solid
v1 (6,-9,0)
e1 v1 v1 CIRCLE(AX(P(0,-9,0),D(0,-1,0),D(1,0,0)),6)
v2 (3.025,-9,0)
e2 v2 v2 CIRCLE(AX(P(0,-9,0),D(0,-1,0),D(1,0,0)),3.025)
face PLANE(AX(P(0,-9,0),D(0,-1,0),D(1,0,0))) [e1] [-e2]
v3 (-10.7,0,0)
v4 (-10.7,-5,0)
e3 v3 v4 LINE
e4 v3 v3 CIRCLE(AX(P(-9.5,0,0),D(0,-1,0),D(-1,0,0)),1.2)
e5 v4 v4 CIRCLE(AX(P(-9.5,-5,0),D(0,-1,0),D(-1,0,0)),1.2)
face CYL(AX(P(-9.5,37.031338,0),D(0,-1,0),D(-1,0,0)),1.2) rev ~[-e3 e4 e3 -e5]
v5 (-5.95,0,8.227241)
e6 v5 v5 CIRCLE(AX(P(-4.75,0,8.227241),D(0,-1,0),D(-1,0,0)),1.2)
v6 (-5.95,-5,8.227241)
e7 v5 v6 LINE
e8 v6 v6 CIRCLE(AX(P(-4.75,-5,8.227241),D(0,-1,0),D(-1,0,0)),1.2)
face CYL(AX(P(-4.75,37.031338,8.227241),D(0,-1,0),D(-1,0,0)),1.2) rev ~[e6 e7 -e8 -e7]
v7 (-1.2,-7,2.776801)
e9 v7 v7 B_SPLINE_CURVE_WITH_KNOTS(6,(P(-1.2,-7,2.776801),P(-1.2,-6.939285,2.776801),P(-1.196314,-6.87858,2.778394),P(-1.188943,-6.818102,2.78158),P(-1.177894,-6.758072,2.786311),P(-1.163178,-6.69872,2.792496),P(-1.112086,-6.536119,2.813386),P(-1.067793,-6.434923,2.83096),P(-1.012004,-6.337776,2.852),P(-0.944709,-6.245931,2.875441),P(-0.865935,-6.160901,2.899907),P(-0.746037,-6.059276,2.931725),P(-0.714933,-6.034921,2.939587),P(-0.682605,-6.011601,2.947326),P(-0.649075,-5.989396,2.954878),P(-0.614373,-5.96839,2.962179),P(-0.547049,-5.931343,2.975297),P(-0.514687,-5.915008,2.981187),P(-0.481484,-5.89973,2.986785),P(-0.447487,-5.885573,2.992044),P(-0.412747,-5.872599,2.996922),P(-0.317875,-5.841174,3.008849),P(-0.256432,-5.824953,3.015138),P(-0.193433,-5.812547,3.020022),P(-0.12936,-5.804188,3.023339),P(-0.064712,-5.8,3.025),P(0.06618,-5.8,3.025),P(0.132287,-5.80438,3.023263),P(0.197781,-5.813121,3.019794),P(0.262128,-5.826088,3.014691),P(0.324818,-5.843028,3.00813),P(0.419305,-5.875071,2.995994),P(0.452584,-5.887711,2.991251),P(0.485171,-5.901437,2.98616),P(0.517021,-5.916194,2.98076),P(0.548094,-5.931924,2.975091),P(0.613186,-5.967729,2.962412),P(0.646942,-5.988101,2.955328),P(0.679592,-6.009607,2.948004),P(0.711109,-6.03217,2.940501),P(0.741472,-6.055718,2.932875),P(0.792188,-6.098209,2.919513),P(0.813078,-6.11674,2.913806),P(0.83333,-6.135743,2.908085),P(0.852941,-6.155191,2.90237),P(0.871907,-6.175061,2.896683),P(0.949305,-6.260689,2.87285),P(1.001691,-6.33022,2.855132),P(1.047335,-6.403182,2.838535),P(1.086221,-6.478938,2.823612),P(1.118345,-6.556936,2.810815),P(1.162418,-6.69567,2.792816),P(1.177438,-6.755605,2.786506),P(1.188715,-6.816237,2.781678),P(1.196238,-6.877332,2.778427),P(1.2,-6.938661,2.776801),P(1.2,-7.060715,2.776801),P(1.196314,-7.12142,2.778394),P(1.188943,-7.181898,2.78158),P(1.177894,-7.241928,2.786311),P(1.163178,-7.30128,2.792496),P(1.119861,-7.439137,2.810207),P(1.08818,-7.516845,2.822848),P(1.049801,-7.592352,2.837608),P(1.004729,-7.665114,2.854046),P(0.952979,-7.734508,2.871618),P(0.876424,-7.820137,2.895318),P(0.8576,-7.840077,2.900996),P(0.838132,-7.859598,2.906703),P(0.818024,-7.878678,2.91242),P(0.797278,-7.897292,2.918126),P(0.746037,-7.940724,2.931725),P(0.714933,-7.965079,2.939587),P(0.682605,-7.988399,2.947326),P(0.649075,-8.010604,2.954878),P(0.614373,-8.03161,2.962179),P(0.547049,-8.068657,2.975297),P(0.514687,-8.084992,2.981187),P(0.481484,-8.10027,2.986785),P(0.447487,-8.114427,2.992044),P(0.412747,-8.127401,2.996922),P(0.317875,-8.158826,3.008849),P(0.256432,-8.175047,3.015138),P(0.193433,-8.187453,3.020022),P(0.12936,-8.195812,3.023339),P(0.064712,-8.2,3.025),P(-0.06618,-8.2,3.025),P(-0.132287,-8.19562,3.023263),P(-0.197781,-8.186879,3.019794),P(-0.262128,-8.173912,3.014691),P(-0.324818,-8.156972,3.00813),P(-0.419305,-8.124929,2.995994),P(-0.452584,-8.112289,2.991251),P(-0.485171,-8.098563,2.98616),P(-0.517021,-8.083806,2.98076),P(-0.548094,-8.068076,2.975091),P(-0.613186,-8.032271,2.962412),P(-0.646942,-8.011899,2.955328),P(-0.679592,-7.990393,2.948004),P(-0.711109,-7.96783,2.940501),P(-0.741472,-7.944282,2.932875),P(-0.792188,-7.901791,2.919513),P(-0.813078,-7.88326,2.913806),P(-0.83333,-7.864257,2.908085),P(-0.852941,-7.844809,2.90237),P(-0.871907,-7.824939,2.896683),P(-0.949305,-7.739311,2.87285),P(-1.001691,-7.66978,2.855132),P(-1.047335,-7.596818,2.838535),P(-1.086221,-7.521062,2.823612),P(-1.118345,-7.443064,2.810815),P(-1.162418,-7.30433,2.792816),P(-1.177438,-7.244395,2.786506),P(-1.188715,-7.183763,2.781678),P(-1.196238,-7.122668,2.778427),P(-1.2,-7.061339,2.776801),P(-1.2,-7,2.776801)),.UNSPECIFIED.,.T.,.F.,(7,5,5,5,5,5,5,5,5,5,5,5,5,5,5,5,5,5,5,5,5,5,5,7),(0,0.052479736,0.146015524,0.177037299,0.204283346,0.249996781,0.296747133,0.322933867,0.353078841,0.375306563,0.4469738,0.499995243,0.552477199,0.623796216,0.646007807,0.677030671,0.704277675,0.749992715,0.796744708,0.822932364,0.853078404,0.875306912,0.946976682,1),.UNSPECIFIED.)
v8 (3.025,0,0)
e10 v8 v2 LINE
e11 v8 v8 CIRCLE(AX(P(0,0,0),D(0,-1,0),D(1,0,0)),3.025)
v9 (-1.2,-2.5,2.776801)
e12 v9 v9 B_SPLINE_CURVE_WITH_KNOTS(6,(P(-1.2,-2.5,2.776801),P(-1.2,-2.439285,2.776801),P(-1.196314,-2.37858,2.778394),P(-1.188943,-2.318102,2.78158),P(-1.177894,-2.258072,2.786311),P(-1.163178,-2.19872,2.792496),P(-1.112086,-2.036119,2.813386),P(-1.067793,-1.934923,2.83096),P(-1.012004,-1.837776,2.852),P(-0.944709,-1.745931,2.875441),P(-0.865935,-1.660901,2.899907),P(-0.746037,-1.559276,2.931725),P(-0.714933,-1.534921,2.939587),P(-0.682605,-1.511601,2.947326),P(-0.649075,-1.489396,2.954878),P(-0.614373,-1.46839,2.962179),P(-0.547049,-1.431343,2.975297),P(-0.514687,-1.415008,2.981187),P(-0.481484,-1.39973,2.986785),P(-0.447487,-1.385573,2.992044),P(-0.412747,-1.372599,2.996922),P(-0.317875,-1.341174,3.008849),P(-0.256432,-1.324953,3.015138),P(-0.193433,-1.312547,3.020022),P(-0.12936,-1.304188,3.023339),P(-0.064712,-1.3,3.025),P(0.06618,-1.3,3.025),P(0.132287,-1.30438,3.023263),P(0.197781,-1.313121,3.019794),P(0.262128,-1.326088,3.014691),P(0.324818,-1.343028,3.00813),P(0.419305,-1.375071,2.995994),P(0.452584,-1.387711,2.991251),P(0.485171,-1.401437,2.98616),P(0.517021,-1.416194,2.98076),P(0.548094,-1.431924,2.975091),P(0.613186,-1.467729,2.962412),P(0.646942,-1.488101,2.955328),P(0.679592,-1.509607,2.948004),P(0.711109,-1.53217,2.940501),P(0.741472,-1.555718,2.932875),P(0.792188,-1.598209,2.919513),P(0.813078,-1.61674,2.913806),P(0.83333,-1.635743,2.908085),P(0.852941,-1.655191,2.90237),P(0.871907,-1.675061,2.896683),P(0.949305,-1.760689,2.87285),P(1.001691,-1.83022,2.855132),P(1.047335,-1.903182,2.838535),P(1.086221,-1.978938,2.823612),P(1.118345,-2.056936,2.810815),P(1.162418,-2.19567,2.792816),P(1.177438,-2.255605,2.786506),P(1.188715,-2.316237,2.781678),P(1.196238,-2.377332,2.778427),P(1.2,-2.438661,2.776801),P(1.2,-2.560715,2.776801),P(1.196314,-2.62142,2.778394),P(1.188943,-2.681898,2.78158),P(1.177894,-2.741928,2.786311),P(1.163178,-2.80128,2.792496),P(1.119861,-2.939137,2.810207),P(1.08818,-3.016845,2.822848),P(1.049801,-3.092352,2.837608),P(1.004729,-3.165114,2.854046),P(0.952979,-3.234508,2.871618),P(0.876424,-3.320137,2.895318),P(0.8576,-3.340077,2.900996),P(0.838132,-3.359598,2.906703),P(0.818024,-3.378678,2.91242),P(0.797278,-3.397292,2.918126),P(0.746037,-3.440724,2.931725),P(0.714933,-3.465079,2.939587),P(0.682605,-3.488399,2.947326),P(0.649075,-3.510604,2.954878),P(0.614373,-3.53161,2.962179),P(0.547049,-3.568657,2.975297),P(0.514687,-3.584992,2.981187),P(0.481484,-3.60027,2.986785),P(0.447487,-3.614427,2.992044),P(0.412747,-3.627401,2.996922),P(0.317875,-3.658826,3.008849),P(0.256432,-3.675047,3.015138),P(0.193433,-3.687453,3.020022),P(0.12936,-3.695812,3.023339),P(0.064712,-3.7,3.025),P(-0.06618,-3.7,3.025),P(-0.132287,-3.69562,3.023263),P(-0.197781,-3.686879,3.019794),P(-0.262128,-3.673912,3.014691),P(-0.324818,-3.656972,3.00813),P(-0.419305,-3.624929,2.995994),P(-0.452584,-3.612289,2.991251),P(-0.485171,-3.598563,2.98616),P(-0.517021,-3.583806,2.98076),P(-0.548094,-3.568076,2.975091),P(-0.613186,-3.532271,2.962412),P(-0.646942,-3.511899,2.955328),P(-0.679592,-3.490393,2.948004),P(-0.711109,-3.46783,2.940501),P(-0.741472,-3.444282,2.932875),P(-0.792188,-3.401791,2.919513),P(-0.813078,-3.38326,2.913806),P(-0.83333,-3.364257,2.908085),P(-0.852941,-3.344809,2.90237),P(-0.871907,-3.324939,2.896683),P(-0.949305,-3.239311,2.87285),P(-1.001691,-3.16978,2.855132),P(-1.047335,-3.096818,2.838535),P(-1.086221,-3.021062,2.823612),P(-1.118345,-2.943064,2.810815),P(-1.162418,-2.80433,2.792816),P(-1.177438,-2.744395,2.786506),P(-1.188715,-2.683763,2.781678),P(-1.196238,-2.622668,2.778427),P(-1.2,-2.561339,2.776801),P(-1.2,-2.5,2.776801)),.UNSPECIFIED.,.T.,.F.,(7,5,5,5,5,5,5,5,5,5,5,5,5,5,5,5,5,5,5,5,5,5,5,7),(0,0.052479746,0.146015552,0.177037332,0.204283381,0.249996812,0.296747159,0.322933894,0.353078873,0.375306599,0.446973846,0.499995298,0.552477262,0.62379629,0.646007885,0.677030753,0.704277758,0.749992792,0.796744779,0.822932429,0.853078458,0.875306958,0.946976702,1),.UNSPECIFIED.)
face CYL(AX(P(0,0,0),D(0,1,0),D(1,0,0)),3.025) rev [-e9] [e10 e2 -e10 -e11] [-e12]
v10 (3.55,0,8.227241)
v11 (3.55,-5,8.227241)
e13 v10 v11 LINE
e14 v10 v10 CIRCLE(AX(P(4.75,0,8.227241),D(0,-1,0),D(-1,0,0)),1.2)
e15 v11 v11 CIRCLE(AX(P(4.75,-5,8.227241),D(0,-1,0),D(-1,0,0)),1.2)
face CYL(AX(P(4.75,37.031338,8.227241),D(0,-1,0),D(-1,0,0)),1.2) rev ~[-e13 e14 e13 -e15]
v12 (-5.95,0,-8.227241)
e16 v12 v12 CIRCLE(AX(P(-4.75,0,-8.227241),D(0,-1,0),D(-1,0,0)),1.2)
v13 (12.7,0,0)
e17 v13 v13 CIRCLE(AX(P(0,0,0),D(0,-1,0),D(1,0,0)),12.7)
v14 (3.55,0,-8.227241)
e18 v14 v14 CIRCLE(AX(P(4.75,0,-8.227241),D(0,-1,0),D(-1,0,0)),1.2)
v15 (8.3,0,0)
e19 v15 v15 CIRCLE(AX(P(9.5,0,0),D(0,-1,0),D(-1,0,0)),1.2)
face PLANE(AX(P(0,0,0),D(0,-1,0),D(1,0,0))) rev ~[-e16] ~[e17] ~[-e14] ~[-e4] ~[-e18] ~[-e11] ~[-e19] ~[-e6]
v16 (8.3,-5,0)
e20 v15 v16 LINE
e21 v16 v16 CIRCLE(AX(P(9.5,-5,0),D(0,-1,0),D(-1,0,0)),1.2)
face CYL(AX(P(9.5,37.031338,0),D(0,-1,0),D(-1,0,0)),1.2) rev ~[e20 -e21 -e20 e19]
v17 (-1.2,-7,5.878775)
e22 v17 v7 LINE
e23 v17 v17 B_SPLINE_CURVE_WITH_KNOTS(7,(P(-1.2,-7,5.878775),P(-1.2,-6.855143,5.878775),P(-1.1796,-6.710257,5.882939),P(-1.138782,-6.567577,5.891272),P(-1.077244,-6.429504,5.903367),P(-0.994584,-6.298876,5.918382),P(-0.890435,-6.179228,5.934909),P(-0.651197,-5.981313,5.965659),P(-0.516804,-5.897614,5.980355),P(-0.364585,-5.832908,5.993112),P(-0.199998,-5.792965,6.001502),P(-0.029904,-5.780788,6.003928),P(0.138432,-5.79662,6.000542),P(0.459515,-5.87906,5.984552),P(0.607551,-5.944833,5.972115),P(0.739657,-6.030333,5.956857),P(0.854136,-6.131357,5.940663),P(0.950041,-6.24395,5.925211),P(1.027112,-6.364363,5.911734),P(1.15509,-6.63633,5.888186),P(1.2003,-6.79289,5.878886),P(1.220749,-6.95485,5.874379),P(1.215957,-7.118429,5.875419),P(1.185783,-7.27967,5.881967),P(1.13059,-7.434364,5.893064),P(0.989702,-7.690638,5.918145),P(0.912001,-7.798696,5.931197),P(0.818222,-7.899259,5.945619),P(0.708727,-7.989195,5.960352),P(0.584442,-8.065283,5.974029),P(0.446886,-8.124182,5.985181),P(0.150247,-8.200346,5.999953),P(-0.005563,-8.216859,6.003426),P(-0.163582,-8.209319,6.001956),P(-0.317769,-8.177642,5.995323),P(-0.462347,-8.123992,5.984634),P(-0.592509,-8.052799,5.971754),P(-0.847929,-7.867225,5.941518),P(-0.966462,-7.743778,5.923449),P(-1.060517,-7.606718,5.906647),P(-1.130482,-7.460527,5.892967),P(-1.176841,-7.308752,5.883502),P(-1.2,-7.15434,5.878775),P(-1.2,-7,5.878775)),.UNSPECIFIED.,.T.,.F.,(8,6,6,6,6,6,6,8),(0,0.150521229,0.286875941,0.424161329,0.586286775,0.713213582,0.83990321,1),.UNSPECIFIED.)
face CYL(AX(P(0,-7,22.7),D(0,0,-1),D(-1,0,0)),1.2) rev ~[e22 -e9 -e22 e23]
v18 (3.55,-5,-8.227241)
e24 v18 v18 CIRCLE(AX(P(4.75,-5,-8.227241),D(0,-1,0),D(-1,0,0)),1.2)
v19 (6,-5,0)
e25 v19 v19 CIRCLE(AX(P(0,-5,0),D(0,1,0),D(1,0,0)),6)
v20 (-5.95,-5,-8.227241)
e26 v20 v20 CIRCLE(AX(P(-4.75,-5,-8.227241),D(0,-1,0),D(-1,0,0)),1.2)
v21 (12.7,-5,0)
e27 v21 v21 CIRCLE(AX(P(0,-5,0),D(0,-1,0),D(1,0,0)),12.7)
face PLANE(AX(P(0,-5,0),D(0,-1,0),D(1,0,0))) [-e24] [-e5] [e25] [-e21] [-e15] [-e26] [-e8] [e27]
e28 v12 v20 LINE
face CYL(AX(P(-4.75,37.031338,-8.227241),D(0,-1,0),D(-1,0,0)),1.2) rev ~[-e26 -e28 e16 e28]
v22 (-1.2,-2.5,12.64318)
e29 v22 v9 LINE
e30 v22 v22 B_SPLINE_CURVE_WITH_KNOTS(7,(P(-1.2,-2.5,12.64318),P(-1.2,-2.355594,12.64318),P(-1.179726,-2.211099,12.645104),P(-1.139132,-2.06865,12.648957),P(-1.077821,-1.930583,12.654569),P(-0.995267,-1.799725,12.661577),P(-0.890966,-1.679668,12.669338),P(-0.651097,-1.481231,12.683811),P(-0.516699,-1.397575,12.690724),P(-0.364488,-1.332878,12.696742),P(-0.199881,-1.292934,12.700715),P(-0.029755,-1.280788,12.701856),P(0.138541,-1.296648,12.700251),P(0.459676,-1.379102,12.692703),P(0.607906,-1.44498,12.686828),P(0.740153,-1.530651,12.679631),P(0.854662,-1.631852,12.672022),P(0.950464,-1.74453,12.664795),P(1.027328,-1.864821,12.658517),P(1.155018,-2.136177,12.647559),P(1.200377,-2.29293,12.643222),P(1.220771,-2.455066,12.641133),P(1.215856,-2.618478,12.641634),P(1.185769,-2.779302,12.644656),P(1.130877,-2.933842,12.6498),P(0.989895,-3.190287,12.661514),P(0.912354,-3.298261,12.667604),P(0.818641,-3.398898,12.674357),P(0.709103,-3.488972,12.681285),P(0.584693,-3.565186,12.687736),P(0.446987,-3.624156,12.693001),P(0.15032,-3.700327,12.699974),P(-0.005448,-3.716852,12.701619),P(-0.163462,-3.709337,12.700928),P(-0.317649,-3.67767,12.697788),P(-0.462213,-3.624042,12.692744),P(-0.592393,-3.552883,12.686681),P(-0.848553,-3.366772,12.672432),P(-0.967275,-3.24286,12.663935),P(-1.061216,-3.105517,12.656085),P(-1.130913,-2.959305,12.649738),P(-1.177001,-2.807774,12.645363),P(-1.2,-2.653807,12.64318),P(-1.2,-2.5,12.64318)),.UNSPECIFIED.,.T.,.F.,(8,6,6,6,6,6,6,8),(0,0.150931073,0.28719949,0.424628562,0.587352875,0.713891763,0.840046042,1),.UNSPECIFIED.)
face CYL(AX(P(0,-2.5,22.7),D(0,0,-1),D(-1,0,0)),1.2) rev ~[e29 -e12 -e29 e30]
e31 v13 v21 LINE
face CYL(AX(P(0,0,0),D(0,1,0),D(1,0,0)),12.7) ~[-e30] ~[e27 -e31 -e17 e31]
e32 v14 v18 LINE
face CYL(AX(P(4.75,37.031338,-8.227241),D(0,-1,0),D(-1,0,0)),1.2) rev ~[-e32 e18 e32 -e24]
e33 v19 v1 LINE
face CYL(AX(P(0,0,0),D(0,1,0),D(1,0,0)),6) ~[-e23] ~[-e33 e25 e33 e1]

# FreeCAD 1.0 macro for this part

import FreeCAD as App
import Part
import Sketcher

V = App.Vector
Q = App.Units.Quantity

doc = App.newDocument("Part")
params = doc.addObject("Spreadsheet::Sheet", "Params")
for row, (alias, value) in enumerate([
    ("sketch1_diameter", "25.4 mm"),
    ("sketch1_diameter2", "6.05 mm"),
    ("pad1_length", "5 mm"),
    ("sketch2_diameter", "12 mm"),
    ("sketch2_diameter2", "6.05 mm"),
    ("pad2_length", "9 mm"),
    ("sketch3_diameter", "2.4 mm"),
    ("hole_diameter", "2.4 mm"),
    ("sketch4_diameter", "2.4 mm"),
    ("hole2_diameter", "2.4 mm"),
    ("hole2_depth", "10 mm"),
], start=1):
    params.set(f"A{row}", alias)
    params.set(f"B{row}", "=" + value)
    params.setAlias(f"B{row}", alias)

body = doc.addObject("PartDesign::Body", "Body")

# Sketch on XZ plane
sketch1 = body.newObject("Sketcher::SketchObject", "Sketch")
sketch1.AttachmentSupport = (doc.getObject("XZ_Plane"), [""])
sketch1.MapMode = "FlatFace"
sketch1.addGeometry([
    Part.Circle(V(0, 0, 0), V(0, 0, 1), 12.7),
    Part.Circle(V(0, 0, 0), V(0, 0, 1), 3),
], False)
sketch1.addConstraint([
    Sketcher.Constraint("Coincident", 0, 3, -1, 1),
    Sketcher.Constraint("Coincident", 1, 3, -1, 1),
    Sketcher.Constraint("Diameter", 0, Q("25.4 mm")),
    Sketcher.Constraint("Diameter", 1, Q("6.05 mm")),
])
sketch1.setExpression("Constraints[2]", "Params.sketch1_diameter")
sketch1.setExpression("Constraints[3]", "Params.sketch1_diameter2")
pad1 = body.newObject("PartDesign::Pad", "Pad")
pad1.Profile = sketch1
pad1.setExpression("Length", "Params.pad1_length")

# Sketch on XZ plane
sketch2 = body.newObject("Sketcher::SketchObject", "Sketch001")
sketch2.AttachmentSupport = (doc.getObject("XZ_Plane"), [""])
sketch2.MapMode = "FlatFace"
sketch2.addGeometry([
    Part.Circle(V(0, 0, 0), V(0, 0, 1), 6),
    Part.Circle(V(0, 0, 0), V(0, 0, 1), 3),
], False)
sketch2.addConstraint([
    Sketcher.Constraint("Coincident", 0, 3, -1, 1),
    Sketcher.Constraint("Coincident", 1, 3, -1, 1),
    Sketcher.Constraint("Diameter", 0, Q("12 mm")),
    Sketcher.Constraint("Diameter", 1, Q("6.05 mm")),
])
sketch2.setExpression("Constraints[2]", "Params.sketch2_diameter")
sketch2.setExpression("Constraints[3]", "Params.sketch2_diameter2")
pad2 = body.newObject("PartDesign::Pad", "Pad001")
pad2.Profile = sketch2
pad2.setExpression("Length", "Params.pad2_length")

# Sketch on XZ plane
sketch3 = body.newObject("Sketcher::SketchObject", "Sketch002")
sketch3.AttachmentSupport = (doc.getObject("XZ_Plane"), [""])
sketch3.MapMode = "FlatFace"
sketch3.addGeometry([
    Part.Circle(V(9.5, 0, 0), V(0, 0, 1), 1.2),  # 0
    Part.Circle(V(4.8, 8.2, 0), V(0, 0, 1), 1.2),  # 1
    Part.Circle(V(-4.8, 8.2, 0), V(0, 0, 1), 1.2),  # 2
    Part.Circle(V(-9.5, 0, 0), V(0, 0, 1), 1.2),  # 3
    Part.Circle(V(-4.8, -8.2, 0), V(0, 0, 1), 1.2),  # 4
    Part.Circle(V(4.8, -8.2, 0), V(0, 0, 1), 1.2),  # 5
], False)
sketch3.addConstraint([
    Sketcher.Constraint("Equal", 0, 1),
    Sketcher.Constraint("Equal", 1, 2),
    Sketcher.Constraint("Equal", 2, 3),
    Sketcher.Constraint("Equal", 3, 4),
    Sketcher.Constraint("Equal", 4, 5),
    Sketcher.Constraint("Symmetric", 0, 3, 3, 3, -1, 1),
    Sketcher.Constraint("Symmetric", 1, 3, 4, 3, -1, 1),
    Sketcher.Constraint("Symmetric", 2, 3, 5, 3, -1, 1),
    Sketcher.Constraint("Symmetric", 1, 3, 2, 3, -2),
    Sketcher.Constraint("PointOnObject", 0, 3, -1),
    Sketcher.Constraint("Diameter", 0, Q("2.4 mm")),
    Sketcher.Constraint("DistanceX", 3, 3, 0, 3, Q("19 mm")),
    Sketcher.Constraint("DistanceX", 2, 3, 1, 3, Q("9.5 mm")),
    Sketcher.Constraint("DistanceY", -1, 1, 1, 3, Q("8.227241 mm")),
])
sketch3.setExpression("Constraints[10]", "Params.sketch3_diameter")
doc.recompute()
hole = body.newObject("PartDesign::Hole", "Hole")
hole.Profile = sketch3
hole.ThreadType = "None"
hole.setExpression("Diameter", "Params.hole_diameter")
hole.DepthType = "ThroughAll"
hole.Reversed = True

# Sketch on XY plane
sketch4 = body.newObject("Sketcher::SketchObject", "Sketch003")
sketch4.AttachmentSupport = (doc.getObject("XY_Plane"), [""])
sketch4.MapMode = "FlatFace"
sketch4.AttachmentOffset = App.Placement(V(0, 0, 12.7), App.Rotation())
sketch4.addGeometry([
    Part.Circle(V(0, -2.5, 0), V(0, 0, 1), 1.2),
    Part.Circle(V(0, -7, 0), V(0, 0, 1), 1.2),
], False)
sketch4.addConstraint([
    Sketcher.Constraint("Equal", 0, 1),
    Sketcher.Constraint("PointOnObject", 0, 3, -2),
    Sketcher.Constraint("PointOnObject", 1, 3, -2),
    Sketcher.Constraint("Diameter", 0, Q("2.4 mm")),
    Sketcher.Constraint("DistanceY", 1, 3, -1, 1, Q("7 mm")),
    Sketcher.Constraint("DistanceY", 0, 3, -1, 1, Q("2.5 mm")),
])
sketch4.setExpression("Constraints[3]", "Params.sketch4_diameter")
doc.recompute()
hole2 = body.newObject("PartDesign::Hole", "Hole001")
hole2.Profile = sketch4
hole2.ThreadType = "None"
hole2.setExpression("Diameter", "Params.hole2_diameter")
hole2.DepthType = "Dimension"
hole2.setExpression("Depth", "Params.hole2_depth")
hole2.DrillPoint = "Angled"
hole2.DrillPointAngle = 118

doc.recompute()
